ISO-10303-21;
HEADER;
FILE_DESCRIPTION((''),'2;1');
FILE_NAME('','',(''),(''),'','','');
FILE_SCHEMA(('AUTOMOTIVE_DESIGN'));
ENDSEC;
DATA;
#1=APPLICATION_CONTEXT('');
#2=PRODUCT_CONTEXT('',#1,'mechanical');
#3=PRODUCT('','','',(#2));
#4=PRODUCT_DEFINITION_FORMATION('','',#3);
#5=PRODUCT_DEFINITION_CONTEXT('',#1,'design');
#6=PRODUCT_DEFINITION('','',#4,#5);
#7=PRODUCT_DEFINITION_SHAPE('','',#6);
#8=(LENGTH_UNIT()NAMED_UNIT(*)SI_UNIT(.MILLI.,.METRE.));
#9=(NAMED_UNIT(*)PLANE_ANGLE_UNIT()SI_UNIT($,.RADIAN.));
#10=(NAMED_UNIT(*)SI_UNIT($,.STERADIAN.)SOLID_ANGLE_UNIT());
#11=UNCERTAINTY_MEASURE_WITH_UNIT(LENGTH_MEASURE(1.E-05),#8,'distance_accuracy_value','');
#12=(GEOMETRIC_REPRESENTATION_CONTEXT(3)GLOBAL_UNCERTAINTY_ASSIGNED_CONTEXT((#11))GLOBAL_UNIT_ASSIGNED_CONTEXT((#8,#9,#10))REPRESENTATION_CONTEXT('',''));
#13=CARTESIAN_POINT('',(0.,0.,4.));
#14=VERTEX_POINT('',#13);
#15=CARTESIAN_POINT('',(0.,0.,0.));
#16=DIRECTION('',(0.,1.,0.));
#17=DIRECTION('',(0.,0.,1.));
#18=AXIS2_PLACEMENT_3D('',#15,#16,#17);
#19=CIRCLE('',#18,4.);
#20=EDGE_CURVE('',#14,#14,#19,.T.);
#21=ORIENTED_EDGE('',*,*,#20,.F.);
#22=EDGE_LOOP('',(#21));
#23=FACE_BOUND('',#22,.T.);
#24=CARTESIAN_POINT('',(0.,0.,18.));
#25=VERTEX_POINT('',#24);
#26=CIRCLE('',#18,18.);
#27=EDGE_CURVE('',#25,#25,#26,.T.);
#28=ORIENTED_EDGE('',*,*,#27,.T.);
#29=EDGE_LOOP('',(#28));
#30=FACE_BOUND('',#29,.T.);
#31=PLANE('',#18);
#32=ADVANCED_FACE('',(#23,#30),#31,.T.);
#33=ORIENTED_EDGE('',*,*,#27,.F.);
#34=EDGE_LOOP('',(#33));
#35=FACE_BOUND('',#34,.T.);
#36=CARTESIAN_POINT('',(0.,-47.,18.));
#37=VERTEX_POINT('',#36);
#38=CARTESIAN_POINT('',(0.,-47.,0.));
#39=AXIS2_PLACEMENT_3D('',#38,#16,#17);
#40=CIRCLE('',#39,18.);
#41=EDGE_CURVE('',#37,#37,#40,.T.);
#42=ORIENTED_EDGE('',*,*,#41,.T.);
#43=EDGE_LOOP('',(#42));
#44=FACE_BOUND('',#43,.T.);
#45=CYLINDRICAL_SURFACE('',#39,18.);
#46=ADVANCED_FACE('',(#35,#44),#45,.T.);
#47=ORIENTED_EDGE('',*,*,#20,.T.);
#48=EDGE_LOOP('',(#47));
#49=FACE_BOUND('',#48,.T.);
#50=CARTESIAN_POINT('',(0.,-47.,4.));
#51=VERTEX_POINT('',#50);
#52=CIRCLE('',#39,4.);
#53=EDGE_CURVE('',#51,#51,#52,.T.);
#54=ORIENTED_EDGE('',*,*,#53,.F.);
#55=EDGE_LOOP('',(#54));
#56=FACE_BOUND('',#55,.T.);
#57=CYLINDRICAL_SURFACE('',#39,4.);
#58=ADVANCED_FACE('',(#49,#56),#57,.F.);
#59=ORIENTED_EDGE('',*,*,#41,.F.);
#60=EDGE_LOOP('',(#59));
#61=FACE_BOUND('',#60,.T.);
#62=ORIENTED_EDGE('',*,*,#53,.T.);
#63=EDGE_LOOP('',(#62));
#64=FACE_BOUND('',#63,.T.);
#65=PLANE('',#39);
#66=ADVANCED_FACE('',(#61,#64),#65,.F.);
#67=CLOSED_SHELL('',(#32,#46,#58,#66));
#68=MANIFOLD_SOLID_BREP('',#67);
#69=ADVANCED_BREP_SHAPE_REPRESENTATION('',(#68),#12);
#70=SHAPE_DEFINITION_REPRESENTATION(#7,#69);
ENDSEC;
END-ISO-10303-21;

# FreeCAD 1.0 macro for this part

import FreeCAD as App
import Part
import Sketcher

doc = App.newDocument("Part")
body = doc.addObject("PartDesign::Body", "Body")

sketch1 = body.newObject("Sketcher::SketchObject", "Sketch")
sketch1.AttachmentSupport = (doc.getObject("XZ_Plane"), [""])
sketch1.MapMode = "FlatFace"
sketch1.addGeometry([
    Part.Circle(App.Vector(0, 0, 0), App.Vector(0, 0, 1), 18),
    Part.Circle(App.Vector(0, 0, 0), App.Vector(0, 0, 1), 4),
], False)
sketch1.addConstraint([
    Sketcher.Constraint("Coincident", 0, 3, -1, 1),
    Sketcher.Constraint("Coincident", 1, 3, -1, 1),
    Sketcher.Constraint("Diameter", 0, 36.0),
    Sketcher.Constraint("Diameter", 1, 8.0),
])
pad1 = body.newObject("PartDesign::Pad", "Pad")
pad1.Profile = sketch1
pad1.Length = 47

doc.recompute()
